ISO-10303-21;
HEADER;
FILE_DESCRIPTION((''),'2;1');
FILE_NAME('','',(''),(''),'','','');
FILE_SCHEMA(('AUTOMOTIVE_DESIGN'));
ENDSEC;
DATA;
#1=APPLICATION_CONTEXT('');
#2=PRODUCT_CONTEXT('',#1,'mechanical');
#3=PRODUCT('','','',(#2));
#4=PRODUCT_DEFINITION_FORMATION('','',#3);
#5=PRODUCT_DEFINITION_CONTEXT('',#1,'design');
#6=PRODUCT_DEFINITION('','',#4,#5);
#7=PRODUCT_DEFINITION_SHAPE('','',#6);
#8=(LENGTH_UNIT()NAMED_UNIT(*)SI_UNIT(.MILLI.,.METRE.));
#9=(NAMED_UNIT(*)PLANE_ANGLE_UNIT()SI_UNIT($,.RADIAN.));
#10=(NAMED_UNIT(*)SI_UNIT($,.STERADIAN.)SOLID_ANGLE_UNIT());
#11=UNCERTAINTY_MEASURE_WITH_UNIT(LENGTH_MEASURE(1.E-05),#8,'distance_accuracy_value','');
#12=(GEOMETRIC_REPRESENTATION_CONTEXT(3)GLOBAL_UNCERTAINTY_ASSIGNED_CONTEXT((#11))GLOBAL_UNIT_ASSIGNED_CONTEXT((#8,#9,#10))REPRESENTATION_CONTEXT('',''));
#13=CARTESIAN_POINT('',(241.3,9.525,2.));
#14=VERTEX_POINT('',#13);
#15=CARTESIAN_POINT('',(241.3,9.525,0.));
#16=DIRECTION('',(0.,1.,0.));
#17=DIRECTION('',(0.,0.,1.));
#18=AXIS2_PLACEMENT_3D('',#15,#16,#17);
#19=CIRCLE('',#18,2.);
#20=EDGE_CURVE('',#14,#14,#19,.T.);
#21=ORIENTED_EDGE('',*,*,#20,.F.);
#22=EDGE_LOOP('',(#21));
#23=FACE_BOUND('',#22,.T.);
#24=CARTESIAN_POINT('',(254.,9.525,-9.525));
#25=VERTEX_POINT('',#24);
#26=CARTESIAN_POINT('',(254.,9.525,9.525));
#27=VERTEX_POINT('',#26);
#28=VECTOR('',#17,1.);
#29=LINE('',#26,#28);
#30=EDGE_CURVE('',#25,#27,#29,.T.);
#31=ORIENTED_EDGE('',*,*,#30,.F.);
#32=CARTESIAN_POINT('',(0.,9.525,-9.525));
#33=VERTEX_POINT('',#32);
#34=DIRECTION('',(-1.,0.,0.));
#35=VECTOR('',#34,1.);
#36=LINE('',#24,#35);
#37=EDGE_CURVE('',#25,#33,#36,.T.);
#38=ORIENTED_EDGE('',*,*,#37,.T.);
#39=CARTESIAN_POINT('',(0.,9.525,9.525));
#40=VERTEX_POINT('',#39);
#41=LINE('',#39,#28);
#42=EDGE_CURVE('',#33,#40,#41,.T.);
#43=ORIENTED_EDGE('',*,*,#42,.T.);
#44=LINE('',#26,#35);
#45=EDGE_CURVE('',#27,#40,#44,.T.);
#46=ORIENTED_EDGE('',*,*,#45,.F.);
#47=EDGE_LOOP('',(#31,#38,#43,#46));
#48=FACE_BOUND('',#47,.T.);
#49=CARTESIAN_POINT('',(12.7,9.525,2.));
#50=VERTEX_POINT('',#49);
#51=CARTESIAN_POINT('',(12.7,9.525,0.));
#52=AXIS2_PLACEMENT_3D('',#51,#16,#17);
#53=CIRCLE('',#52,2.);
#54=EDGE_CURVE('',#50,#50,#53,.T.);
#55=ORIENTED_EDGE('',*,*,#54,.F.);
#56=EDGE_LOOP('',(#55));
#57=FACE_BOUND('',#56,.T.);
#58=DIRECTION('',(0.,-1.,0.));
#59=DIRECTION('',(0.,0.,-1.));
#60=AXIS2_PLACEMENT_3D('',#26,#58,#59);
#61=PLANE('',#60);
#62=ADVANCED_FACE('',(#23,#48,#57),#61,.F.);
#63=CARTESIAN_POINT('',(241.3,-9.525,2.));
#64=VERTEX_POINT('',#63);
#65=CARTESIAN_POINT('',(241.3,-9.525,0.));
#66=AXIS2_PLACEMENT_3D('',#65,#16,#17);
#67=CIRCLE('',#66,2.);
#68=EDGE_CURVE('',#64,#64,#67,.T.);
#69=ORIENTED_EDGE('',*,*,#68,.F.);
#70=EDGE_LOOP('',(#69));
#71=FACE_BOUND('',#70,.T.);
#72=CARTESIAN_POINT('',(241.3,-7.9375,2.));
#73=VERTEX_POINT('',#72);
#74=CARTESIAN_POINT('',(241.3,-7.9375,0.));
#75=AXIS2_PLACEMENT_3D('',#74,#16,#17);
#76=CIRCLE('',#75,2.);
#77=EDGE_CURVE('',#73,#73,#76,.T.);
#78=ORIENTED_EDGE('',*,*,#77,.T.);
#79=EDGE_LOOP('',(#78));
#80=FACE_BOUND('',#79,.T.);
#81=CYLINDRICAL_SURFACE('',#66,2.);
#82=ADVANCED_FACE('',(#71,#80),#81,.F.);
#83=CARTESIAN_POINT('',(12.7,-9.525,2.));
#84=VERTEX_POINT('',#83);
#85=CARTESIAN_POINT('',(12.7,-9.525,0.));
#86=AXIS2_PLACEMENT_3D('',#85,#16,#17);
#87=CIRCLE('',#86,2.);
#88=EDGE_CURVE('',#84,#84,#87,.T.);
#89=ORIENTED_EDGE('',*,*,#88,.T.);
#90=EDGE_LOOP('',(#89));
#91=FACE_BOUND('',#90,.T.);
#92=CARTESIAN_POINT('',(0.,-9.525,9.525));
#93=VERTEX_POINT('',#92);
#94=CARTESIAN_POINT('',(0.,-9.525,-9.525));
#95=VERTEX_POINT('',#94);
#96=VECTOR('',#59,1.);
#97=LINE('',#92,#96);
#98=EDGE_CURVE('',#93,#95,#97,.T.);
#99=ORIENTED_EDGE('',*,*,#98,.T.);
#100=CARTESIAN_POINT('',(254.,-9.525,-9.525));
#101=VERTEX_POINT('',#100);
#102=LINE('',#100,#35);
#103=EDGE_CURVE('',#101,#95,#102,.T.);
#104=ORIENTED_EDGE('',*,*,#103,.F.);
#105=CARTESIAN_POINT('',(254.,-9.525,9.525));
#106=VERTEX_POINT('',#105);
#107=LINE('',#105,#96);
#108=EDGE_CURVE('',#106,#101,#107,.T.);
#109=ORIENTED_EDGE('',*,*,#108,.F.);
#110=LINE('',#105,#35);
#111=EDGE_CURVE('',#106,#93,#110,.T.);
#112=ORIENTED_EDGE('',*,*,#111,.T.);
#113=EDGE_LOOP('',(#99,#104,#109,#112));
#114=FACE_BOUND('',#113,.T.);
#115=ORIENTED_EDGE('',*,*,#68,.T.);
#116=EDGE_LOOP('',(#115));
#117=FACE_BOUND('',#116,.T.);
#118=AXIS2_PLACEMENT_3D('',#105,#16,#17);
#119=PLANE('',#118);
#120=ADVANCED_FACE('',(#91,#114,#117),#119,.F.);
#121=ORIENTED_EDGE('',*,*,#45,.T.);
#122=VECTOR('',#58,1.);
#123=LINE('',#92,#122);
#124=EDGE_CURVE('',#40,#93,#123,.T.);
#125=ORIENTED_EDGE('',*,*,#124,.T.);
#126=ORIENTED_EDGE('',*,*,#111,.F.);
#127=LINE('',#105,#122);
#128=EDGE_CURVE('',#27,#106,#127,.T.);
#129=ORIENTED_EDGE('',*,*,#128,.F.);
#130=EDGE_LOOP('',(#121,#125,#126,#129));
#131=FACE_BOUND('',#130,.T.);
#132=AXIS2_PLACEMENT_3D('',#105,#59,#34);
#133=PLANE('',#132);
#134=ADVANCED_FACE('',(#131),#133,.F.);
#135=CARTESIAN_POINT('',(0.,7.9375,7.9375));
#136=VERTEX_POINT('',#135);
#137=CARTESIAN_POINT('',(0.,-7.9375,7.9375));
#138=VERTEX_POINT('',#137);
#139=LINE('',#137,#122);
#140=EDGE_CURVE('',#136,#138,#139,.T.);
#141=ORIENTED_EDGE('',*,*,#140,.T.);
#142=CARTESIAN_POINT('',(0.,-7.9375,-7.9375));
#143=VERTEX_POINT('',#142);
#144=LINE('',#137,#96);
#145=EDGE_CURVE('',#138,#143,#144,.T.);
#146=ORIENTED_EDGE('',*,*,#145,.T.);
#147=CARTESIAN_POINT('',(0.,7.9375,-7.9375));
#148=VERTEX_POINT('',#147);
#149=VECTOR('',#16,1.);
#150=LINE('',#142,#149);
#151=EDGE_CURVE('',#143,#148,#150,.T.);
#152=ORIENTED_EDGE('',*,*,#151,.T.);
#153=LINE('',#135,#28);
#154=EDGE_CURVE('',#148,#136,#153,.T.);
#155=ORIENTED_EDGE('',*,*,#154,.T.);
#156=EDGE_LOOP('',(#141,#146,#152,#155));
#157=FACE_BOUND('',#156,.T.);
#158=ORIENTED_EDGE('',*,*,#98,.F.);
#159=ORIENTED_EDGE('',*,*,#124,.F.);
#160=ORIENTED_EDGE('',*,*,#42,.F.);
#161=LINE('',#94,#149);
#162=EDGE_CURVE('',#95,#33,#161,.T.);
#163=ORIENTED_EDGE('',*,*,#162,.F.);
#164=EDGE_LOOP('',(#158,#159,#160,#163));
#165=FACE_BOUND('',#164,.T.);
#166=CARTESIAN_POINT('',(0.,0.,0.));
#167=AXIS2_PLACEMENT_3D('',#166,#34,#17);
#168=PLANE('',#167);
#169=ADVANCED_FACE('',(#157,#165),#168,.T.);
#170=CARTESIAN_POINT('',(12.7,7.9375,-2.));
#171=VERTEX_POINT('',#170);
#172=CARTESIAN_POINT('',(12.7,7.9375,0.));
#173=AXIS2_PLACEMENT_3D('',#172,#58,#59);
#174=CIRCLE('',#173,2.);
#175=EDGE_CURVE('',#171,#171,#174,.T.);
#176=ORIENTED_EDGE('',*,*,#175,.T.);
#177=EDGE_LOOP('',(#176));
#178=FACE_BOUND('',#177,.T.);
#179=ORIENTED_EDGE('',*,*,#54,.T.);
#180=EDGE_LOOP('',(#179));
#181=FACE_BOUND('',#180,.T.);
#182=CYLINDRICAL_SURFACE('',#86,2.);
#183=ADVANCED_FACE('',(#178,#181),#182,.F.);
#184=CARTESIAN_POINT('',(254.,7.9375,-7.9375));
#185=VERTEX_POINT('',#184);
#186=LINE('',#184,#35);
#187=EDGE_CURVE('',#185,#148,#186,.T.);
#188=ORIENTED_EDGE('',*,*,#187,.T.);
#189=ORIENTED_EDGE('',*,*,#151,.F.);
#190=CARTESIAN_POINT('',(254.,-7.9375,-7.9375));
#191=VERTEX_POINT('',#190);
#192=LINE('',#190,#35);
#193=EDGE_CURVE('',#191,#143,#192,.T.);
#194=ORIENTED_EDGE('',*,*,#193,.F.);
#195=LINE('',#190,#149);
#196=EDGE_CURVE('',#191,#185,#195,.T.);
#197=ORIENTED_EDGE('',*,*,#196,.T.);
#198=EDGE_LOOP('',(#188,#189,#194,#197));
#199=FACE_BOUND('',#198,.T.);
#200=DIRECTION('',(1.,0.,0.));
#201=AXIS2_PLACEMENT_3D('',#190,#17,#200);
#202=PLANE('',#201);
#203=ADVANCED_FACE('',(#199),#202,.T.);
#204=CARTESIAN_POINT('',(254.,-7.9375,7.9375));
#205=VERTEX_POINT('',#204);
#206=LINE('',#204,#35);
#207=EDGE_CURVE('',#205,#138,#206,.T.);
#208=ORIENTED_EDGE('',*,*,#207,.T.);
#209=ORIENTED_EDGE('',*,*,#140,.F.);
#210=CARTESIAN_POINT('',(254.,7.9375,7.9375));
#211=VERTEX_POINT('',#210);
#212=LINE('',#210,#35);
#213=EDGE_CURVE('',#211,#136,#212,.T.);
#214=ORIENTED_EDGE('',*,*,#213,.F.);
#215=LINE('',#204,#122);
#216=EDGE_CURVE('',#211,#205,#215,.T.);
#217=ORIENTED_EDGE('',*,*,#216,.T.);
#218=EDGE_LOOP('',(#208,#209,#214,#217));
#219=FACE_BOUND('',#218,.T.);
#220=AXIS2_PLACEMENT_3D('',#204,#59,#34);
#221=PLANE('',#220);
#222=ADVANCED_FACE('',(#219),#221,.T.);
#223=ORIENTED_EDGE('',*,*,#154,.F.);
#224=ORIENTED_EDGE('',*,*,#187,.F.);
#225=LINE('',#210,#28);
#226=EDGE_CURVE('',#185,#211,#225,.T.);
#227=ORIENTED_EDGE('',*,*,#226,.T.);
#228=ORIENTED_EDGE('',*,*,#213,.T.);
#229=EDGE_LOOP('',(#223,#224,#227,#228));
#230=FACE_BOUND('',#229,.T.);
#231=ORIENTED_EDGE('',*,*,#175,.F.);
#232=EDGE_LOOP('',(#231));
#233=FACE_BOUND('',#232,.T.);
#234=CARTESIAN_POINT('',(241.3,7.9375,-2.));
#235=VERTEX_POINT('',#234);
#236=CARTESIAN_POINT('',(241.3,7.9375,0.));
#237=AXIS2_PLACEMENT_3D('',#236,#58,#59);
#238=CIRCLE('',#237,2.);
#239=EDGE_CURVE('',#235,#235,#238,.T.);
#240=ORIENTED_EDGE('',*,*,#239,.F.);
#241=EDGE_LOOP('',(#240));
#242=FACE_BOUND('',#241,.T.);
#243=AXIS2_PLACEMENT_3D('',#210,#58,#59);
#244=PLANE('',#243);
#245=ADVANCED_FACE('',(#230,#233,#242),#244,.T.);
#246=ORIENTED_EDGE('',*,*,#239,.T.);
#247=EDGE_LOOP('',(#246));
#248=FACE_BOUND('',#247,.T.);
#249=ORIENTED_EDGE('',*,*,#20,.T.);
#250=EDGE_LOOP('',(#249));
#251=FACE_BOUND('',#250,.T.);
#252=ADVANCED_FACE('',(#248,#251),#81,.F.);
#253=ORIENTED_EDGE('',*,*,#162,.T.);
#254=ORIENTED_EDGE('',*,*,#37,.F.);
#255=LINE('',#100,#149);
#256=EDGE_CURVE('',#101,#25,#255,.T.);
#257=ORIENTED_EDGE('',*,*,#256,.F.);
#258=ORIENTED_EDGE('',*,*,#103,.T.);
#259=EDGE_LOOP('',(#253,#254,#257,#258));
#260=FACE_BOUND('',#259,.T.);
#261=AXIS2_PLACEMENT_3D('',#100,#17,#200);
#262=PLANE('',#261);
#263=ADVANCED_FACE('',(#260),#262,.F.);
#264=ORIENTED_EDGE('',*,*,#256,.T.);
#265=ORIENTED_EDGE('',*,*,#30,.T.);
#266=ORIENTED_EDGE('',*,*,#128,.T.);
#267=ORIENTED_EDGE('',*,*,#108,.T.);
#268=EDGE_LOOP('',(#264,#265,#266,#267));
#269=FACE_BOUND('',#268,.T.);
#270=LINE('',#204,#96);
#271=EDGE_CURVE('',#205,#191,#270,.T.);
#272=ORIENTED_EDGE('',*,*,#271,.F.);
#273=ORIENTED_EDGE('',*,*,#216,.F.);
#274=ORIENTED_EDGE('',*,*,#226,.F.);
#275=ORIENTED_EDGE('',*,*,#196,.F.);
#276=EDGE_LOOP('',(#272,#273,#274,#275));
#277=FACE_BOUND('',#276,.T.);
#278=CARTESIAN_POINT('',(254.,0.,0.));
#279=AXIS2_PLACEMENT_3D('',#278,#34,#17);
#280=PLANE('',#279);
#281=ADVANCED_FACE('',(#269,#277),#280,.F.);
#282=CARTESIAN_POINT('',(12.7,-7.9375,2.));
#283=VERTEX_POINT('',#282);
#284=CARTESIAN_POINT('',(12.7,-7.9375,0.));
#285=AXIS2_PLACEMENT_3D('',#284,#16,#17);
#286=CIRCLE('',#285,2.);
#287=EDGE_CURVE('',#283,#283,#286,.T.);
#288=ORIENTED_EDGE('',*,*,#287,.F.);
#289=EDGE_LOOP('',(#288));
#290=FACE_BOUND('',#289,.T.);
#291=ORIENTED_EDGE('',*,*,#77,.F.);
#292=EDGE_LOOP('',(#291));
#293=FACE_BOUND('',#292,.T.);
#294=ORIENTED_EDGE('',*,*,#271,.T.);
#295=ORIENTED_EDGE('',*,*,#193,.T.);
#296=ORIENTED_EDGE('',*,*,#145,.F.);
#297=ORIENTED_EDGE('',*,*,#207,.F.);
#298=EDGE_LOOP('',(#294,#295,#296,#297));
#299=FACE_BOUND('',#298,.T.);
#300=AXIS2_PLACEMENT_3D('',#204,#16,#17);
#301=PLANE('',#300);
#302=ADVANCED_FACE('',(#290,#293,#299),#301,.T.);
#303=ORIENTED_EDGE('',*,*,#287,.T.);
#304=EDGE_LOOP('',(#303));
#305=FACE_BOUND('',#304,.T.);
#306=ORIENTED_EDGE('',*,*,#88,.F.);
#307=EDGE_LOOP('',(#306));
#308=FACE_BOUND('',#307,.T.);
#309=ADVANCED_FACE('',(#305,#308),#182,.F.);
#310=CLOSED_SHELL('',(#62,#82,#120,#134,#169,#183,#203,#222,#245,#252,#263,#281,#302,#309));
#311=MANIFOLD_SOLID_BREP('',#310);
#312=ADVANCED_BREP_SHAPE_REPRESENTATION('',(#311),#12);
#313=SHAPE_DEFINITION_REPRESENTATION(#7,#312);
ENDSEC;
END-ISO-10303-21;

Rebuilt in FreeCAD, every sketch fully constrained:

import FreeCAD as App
import Part
import Sketcher

V = App.Vector
Q = App.Units.Quantity


def add_polygon(sketch, points):
    """Adds a closed chain of lines whose ends are joined by coincident constraints."""
    first, n = sketch.GeometryCount, len(points)
    for a, b in zip(points, points[1:] + points[:1]):
        sketch.addGeometry(Part.LineSegment(App.Vector(*a, 0), App.Vector(*b, 0)), False)
    for i in range(n):
        sketch.addConstraint(Sketcher.Constraint("Coincident", first + i, 2, first + (i + 1) % n, 1))

doc = App.newDocument("Part")
body = doc.addObject("PartDesign::Body", "Body")

# Sketch on YZ plane
sketch1 = body.newObject("Sketcher::SketchObject", "Sketch")
sketch1.AttachmentSupport = (doc.getObject("YZ_Plane"), [""])
sketch1.MapMode = "FlatFace"
add_polygon(sketch1, [(10, 10), (-10, 10), (-10, -10), (10, -10)])  # lines 0-3
add_polygon(sketch1, [(-8, -8), (-8, 8), (8, 8), (8, -8)])  # lines 4-7
sketch1.addConstraint(Sketcher.Constraint("Horizontal", 0))
sketch1.addConstraint(Sketcher.Constraint("Vertical", 1))
sketch1.addConstraint(Sketcher.Constraint("Horizontal", 2))
sketch1.addConstraint(Sketcher.Constraint("Vertical", 3))
sketch1.addConstraint(Sketcher.Constraint("Vertical", 4))
sketch1.addConstraint(Sketcher.Constraint("Horizontal", 5))
sketch1.addConstraint(Sketcher.Constraint("Vertical", 6))
sketch1.addConstraint(Sketcher.Constraint("Horizontal", 7))
sketch1.addConstraint(Sketcher.Constraint("Symmetric", 0, 2, 2, 2, -1, 1))
sketch1.addConstraint(Sketcher.Constraint("Symmetric", 4, 2, 6, 2, -1, 1))
sketch1.addConstraint(Sketcher.Constraint("Equal", 2, 1))
sketch1.addConstraint(Sketcher.Constraint("Equal", 7, 4))
sketch1.addConstraint(Sketcher.Constraint("DistanceX", 0, 2, 0, 1, Q("0.75 in")))
sketch1.addConstraint(Sketcher.Constraint("DistanceX", 5, 1, 5, 2, Q("0.625 in")))
pad1 = body.newObject("PartDesign::Pad", "Pad")
pad1.Profile = sketch1
pad1.Length = Q("10 in")

# Sketch on XZ plane
sketch2 = body.newObject("Sketcher::SketchObject", "Sketch001")
sketch2.AttachmentSupport = (doc.getObject("XZ_Plane"), [""])
sketch2.MapMode = "FlatFace"
sketch2.AttachmentOffset = App.Placement(V(0, 0, -0.375 * 25.4), App.Rotation())
sketch2.addGeometry(Part.Circle(V(12.7, 0, 0), V(0, 0, 1), 2), False)
sketch2.addGeometry(Part.Circle(V(241.3, 0, 0), V(0, 0, 1), 2), False)
sketch2.addConstraint(Sketcher.Constraint("Equal", 0, 1))
sketch2.addConstraint(Sketcher.Constraint("PointOnObject", 0, 3, -1))
sketch2.addConstraint(Sketcher.Constraint("PointOnObject", 1, 3, -1))
sketch2.addConstraint(Sketcher.Constraint("DistanceX", 0, 3, 1, 3, Q("9 in")))
sketch2.addConstraint(Sketcher.Constraint("DistanceX", -1, 1, 0, 3, Q("0.5 in")))
sketch2.addConstraint(Sketcher.Constraint("Diameter", 0, 4.0))
pocket1 = body.newObject("PartDesign::Pocket", "Pocket")
pocket1.Profile = sketch2
pocket1.Type = "ThroughAll"
pocket1.Reversed = True

doc.recompute()
